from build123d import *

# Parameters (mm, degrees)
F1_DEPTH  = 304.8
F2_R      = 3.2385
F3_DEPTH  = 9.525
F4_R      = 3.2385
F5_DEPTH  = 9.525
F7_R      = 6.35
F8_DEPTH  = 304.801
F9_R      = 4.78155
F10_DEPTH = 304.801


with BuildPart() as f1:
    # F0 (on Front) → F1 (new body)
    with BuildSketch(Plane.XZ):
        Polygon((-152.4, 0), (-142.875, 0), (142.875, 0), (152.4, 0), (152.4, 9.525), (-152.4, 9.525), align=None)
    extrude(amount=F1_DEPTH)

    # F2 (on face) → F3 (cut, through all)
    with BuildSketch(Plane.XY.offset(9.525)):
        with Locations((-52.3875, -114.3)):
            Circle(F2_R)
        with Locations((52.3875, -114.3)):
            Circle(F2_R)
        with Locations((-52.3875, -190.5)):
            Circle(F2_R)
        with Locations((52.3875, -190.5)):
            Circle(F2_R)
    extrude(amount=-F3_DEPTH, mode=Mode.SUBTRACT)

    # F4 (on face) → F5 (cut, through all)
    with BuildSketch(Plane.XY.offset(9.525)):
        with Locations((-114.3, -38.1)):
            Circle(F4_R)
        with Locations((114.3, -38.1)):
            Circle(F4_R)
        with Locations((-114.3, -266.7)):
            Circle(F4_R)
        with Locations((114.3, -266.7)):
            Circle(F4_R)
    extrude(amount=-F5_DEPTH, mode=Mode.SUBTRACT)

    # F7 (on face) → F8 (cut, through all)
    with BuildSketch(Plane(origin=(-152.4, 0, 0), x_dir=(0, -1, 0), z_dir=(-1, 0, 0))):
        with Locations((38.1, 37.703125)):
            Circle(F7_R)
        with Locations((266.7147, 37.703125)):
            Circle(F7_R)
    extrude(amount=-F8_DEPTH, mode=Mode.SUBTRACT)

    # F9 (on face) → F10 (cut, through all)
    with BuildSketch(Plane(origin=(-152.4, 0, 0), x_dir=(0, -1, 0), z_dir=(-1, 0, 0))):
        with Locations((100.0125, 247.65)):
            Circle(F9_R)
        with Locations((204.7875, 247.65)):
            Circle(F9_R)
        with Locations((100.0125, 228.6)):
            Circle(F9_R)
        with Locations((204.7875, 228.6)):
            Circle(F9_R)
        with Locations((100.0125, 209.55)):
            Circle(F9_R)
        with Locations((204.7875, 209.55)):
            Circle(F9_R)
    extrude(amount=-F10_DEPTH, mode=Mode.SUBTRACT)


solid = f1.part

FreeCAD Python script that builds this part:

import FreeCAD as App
import Part
import Sketcher
from FreeCAD import Vector
Q = App.Units.Quantity


def add_polygon(sketch, points):
    """Adds a closed chain of lines whose ends are joined by coincident constraints."""
    first, n = sketch.GeometryCount, len(points)
    for a, b in zip(points, points[1:] + points[:1]):
        sketch.addGeometry(Part.LineSegment(App.Vector(*a, 0), App.Vector(*b, 0)), False)
    for i in range(n):
        sketch.addConstraint(Sketcher.Constraint("Coincident", first + i, 2, first + (i + 1) % n, 1))

doc = App.newDocument("Part")
body = doc.addObject("PartDesign::Body", "Body")

sketch1 = body.newObject("Sketcher::SketchObject", "Sketch")
sketch1.AttachmentSupport = (doc.getObject("XZ_Plane"), [""])
sketch1.MapMode = "FlatFace"
add_polygon(sketch1, [(-152, 0), (152, 0), (152, 10), (-152, 10)])
sketch1.addConstraint([
    Sketcher.Constraint("Horizontal", 0),
    Sketcher.Constraint("Vertical", 1),
    Sketcher.Constraint("Horizontal", 2),
    Sketcher.Constraint("Vertical", 3),
    Sketcher.Constraint("Symmetric", 0, 2, 3, 2, -1, 1),
    Sketcher.Constraint("DistanceX", 0, 1, 0, 2, Q("12 in")),
    Sketcher.Constraint("DistanceY", 1, 1, 1, 2, Q("0.375 in")),
])
pad1 = body.newObject("PartDesign::Pad", "Pad")
pad1.Profile = sketch1
pad1.Length = Q("12 in")

sketch2 = body.newObject("Sketcher::SketchObject", "Sketch001")
sketch2.AttachmentSupport = (doc.getObject("XY_Plane"), [""])
sketch2.MapMode = "FlatFace"
sketch2.AttachmentOffset = App.Placement(Vector(0, 0, 0.375 * 25.4), App.Rotation())
sketch2.addGeometry([
    Part.Circle(Vector(-52.4, -114.3, 0), Vector(0, 0, 1), 3.2),
    Part.Circle(Vector(52.4, -114.3, 0), Vector(0, 0, 1), 3.2),
    Part.Circle(Vector(-52.4, -190.5, 0), Vector(0, 0, 1), 3.2),
    Part.Circle(Vector(52.4, -190.5, 0), Vector(0, 0, 1), 3.2),
], False)
sketch2.addConstraint([
    Sketcher.Constraint("Equal", 0, 1),
    Sketcher.Constraint("Equal", 1, 2),
    Sketcher.Constraint("Equal", 2, 3),
    Sketcher.Constraint("Symmetric", 0, 3, 1, 3, -2),
    Sketcher.Constraint("Symmetric", 2, 3, 3, 3, -2),
    Sketcher.Constraint("Vertical", 0, 3, 2, 3),
    Sketcher.Constraint("Diameter", 0, Q("0.255 in")),
    Sketcher.Constraint("DistanceY", 2, 3, 0, 3, Q("3 in")),
    Sketcher.Constraint("DistanceY", 0, 3, -1, 1, Q("4.5 in")),
    Sketcher.Constraint("DistanceX", 0, 3, -1, 1, Q("2.0625 in")),
])
pocket1 = body.newObject("PartDesign::Pocket", "Pocket")
pocket1.Profile = sketch2
pocket1.Type = "ThroughAll"

sketch3 = body.newObject("Sketcher::SketchObject", "Sketch002")
sketch3.AttachmentSupport = (doc.getObject("XY_Plane"), [""])
sketch3.MapMode = "FlatFace"
sketch3.AttachmentOffset = App.Placement(Vector(0, 0, 0.375 * 25.4), App.Rotation())
sketch3.addGeometry([
    Part.Circle(Vector(-114.3, -38.1, 0), Vector(0, 0, 1), 3.2),
    Part.Circle(Vector(114.3, -38.1, 0), Vector(0, 0, 1), 3.2),
    Part.Circle(Vector(-114.3, -266.7, 0), Vector(0, 0, 1), 3.2),
    Part.Circle(Vector(114.3, -266.7, 0), Vector(0, 0, 1), 3.2),
], False)
sketch3.addConstraint([
    Sketcher.Constraint("Equal", 0, 1),
    Sketcher.Constraint("Equal", 1, 2),
    Sketcher.Constraint("Equal", 2, 3),
    Sketcher.Constraint("Symmetric", 0, 3, 1, 3, -2),
    Sketcher.Constraint("Symmetric", 2, 3, 3, 3, -2),
    Sketcher.Constraint("Vertical", 0, 3, 2, 3),
    Sketcher.Constraint("Diameter", 0, Q("0.255 in")),
    Sketcher.Constraint("DistanceX", 0, 3, 1, 3, Q("9 in")),
    Sketcher.Constraint("DistanceY", 2, 3, 0, 3, Q("9 in")),
    Sketcher.Constraint("DistanceY", 0, 3, -1, 1, Q("1.5 in")),
])
pocket2 = body.newObject("PartDesign::Pocket", "Pocket001")
pocket2.Profile = sketch3
pocket2.Type = "ThroughAll"

sketch4 = body.newObject("Sketcher::SketchObject", "Sketch003")
sketch4.AttachmentSupport = (doc.getObject("YZ_Plane"), [""])
sketch4.MapMode = "FlatFace"
sketch4.AttachmentOffset = App.Placement(Vector(0, 0, -6 * 25.4), App.Rotation())
sketch4.addGeometry([
    Part.Circle(Vector(-38, 38, 0), Vector(0, 0, 1), 6),
    Part.Circle(Vector(-267, 38, 0), Vector(0, 0, 1), 6),
], False)
sketch4.addConstraint([
    Sketcher.Constraint("Equal", 0, 1),
    Sketcher.Constraint("Horizontal", 0, 3, 1, 3),
    Sketcher.Constraint("Diameter", 0, Q("0.5 in")),
    Sketcher.Constraint("DistanceX", 0, 3, -1, 1, Q("1.5 in")),
    Sketcher.Constraint("DistanceY", -1, 1, 0, 3, Q("1.484375 in")),
    Sketcher.Constraint("DistanceX", 1, 3, -1, 1, Q("266.7147 mm")),
])
pocket3 = body.newObject("PartDesign::Pocket", "Pocket002")
pocket3.Profile = sketch4
pocket3.Type = "ThroughAll"
pocket3.Reversed = True

sketch5 = body.newObject("Sketcher::SketchObject", "Sketch004")
sketch5.AttachmentSupport = (doc.getObject("YZ_Plane"), [""])
sketch5.MapMode = "FlatFace"
sketch5.AttachmentOffset = App.Placement(Vector(0, 0, -6 * 25.4), App.Rotation())
sketch5.addGeometry([
    Part.Circle(Vector(-100, 247.7, 0), Vector(0, 0, 1), 4.8),
    Part.Circle(Vector(-204.8, 247.7, 0), Vector(0, 0, 1), 4.8),
    Part.Circle(Vector(-100, 228.6, 0), Vector(0, 0, 1), 4.8),
    Part.Circle(Vector(-204.8, 228.6, 0), Vector(0, 0, 1), 4.8),
    Part.Circle(Vector(-100, 209.6, 0), Vector(0, 0, 1), 4.8),
    Part.Circle(Vector(-204.8, 209.6, 0), Vector(0, 0, 1), 4.8),
], False)
sketch5.addConstraint([
    Sketcher.Constraint("Equal", 0, 1),
    Sketcher.Constraint("Equal", 1, 2),
    Sketcher.Constraint("Equal", 2, 3),
    Sketcher.Constraint("Equal", 3, 4),
    Sketcher.Constraint("Equal", 4, 5),
    Sketcher.Constraint("Horizontal", 0, 3, 1, 3),
    Sketcher.Constraint("Horizontal", 2, 3, 3, 3),
    Sketcher.Constraint("Horizontal", 4, 3, 5, 3),
    Sketcher.Constraint("Vertical", 0, 3, 2, 3),
    Sketcher.Constraint("Vertical", 1, 3, 3, 3),
    Sketcher.Constraint("Vertical", 2, 3, 4, 3),
    Sketcher.Constraint("Vertical", 3, 3, 5, 3),
    Sketcher.Constraint("DistanceY", -1, 1, 2, 3, Q("9 in")),
    Sketcher.Constraint("Diameter", 0, Q("0.3765 in")),
    Sketcher.Constraint("DistanceY", 4, 3, 0, 3, Q("1.5 in")),
    Sketcher.Constraint("DistanceY", -1, 1, 0, 3, Q("9.75 in")),
    Sketcher.Constraint("DistanceX", 0, 3, -1, 1, Q("3.9375 in")),
    Sketcher.Constraint("DistanceX", 1, 3, -1, 1, Q("8.0625 in")),
])
pocket4 = body.newObject("PartDesign::Pocket", "Pocket003")
pocket4.Profile = sketch5
pocket4.Type = "ThroughAll"
pocket4.Reversed = True

doc.recompute()
